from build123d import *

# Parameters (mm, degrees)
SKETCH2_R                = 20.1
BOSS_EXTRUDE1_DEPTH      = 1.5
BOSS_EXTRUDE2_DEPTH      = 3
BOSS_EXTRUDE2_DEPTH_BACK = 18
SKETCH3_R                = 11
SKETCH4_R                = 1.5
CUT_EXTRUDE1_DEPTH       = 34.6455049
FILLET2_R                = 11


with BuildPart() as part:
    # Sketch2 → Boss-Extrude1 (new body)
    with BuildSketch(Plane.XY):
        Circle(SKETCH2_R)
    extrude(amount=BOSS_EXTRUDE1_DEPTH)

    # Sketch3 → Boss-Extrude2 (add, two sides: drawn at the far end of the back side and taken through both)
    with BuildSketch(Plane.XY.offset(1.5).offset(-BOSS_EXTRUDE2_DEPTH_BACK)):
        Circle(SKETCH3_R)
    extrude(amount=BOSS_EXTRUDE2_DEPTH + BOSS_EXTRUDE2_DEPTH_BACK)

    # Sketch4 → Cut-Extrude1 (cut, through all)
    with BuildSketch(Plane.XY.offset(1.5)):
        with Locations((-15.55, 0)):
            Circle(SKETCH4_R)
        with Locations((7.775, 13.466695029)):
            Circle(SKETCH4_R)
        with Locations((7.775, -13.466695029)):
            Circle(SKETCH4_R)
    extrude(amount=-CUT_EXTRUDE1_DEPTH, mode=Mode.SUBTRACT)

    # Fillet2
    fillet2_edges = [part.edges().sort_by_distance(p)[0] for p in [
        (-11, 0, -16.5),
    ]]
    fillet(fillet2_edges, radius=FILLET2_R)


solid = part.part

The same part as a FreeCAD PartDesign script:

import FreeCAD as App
import Part
import Sketcher
from FreeCAD import Vector


def edges_at(feature, points):
    """Names of the edges that pass closest to the given points."""
    edges = feature.Shape.Edges
    near = lambda p: min(range(len(edges)), key=lambda i: edges[i].distToShape(Part.Vertex(*p))[0])
    return sorted({f"Edge{near(p) + 1}" for p in points})

doc = App.newDocument("Part")
body = doc.addObject("PartDesign::Body", "Body")

# Sketch on XY plane
sketch1 = body.newObject("Sketcher::SketchObject", "Sketch")
sketch1.AttachmentSupport = (doc.getObject("XY_Plane"), [""])
sketch1.MapMode = "FlatFace"
sketch1.addGeometry(Part.Circle(Vector(0, 0, 0), Vector(0, 0, 1), 20), False)
sketch1.addConstraint([
    Sketcher.Constraint("Coincident", 0, 3, -1, 1),
    Sketcher.Constraint("Diameter", 0, 40.2),
])
pad1 = body.newObject("PartDesign::Pad", "Pad")
pad1.Profile = sketch1
pad1.Length = 1.5

# Sketch on XY plane
sketch2 = body.newObject("Sketcher::SketchObject", "Sketch001")
sketch2.AttachmentSupport = (doc.getObject("XY_Plane"), [""])
sketch2.MapMode = "FlatFace"
sketch2.AttachmentOffset = App.Placement(Vector(0, 0, 1.5), App.Rotation())
sketch2.addGeometry(Part.Circle(Vector(0, 0, 0), Vector(0, 0, 1), 11), False)
sketch2.addConstraint([
    Sketcher.Constraint("Coincident", 0, 3, -1, 1),
    Sketcher.Constraint("Diameter", 0, 22.0),
])
pad2 = body.newObject("PartDesign::Pad", "Pad001")
pad2.Profile = sketch2
pad2.Type = "TwoLengths"
pad2.Length = 3
pad2.Length2 = 18

# Sketch on XY plane
sketch3 = body.newObject("Sketcher::SketchObject", "Sketch002")
sketch3.AttachmentSupport = (doc.getObject("XY_Plane"), [""])
sketch3.MapMode = "FlatFace"
sketch3.AttachmentOffset = App.Placement(Vector(0, 0, 1.5), App.Rotation())
sketch3.addGeometry([
    Part.Circle(Vector(-15.6, 0, 0), Vector(0, 0, 1), 1.5),
    Part.Circle(Vector(7.8, 13.5, 0), Vector(0, 0, 1), 1.5),
    Part.Circle(Vector(7.8, -13.5, 0), Vector(0, 0, 1), 1.5),
], False)
sketch3.addConstraint([
    Sketcher.Constraint("Equal", 0, 1),
    Sketcher.Constraint("Equal", 1, 2),
    Sketcher.Constraint("Symmetric", 1, 3, 2, 3, -1),
    Sketcher.Constraint("PointOnObject", 0, 3, -1),
    Sketcher.Constraint("Diameter", 0, 3.0),
    Sketcher.Constraint("DistanceX", 0, 3, -1, 1, 15.55),
    Sketcher.Constraint("DistanceX", -1, 1, 1, 3, 7.775),
    Sketcher.Constraint("DistanceY", 2, 3, 1, 3, 26.93339),
])
pocket1 = body.newObject("PartDesign::Pocket", "Pocket")
pocket1.Profile = sketch3
pocket1.Type = "ThroughAll"
doc.recompute()

fillet = body.newObject("PartDesign::Fillet", "Fillet")
fillet.Base = (pocket1, edges_at(pocket1, [(-11, 0, -16.5)]))
fillet.Radius = 11

doc.recompute()
